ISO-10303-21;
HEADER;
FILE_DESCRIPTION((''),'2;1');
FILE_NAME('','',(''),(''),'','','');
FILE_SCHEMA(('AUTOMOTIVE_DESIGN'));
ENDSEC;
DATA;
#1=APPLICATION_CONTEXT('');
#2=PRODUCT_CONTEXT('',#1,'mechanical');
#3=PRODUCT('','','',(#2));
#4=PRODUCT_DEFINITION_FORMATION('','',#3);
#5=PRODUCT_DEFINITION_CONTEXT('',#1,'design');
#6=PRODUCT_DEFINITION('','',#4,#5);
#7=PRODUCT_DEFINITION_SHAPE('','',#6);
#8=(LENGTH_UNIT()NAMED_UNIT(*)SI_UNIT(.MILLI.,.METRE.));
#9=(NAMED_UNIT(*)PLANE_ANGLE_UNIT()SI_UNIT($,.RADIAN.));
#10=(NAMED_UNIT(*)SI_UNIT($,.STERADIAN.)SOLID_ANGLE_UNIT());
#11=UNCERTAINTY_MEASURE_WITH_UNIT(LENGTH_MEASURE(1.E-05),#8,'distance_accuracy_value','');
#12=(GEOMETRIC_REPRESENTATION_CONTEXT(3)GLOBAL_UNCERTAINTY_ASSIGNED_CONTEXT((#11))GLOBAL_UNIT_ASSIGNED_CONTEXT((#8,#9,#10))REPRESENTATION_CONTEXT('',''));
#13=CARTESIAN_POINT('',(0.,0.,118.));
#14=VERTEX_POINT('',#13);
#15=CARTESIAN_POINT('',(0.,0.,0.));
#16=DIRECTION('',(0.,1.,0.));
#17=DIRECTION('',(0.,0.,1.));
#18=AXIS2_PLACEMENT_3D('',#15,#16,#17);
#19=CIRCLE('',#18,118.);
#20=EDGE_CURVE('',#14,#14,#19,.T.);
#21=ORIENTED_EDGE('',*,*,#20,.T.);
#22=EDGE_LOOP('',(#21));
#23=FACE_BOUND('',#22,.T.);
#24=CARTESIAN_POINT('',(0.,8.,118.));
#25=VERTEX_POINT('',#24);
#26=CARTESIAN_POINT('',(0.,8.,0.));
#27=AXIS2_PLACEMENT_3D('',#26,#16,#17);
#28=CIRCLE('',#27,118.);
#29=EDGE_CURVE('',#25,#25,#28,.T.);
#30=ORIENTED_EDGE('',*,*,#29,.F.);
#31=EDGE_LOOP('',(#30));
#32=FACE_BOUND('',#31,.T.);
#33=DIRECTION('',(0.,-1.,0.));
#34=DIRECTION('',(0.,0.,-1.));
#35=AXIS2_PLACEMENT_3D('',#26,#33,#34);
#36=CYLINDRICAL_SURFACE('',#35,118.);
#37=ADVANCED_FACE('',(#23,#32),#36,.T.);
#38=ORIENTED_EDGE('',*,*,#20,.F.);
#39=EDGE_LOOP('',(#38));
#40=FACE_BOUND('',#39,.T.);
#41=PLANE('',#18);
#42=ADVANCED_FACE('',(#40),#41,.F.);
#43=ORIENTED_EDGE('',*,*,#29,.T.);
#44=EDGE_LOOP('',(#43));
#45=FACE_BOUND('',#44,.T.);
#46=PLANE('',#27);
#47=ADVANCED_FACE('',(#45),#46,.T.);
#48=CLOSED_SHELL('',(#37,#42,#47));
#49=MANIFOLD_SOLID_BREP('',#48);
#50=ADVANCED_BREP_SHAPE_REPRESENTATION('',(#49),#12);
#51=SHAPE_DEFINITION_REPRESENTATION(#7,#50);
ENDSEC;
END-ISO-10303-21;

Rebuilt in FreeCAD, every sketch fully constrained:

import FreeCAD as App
import Part
import Sketcher

V = App.Vector
Q = App.Units.Quantity

doc = App.newDocument("Part")
body = doc.addObject("PartDesign::Body", "Body")

# Sketch on XZ plane
sketch1 = doc.addObject("Sketcher::SketchObject", "Sketch")
body.addObject(sketch1)
sketch1.AttachmentSupport = (doc.XZ_Plane, [""])
sketch1.MapMode = "FlatFace"
sketch1.addGeometry(Part.Circle(V(0, 0, 0), V(0, 0, 1), 118), False)
sketch1.addConstraint(Sketcher.Constraint("Coincident", 0, 3, -1, 1))
sketch1.addConstraint(Sketcher.Constraint("Diameter", 0, Q("236 mm")))
pad1 = doc.addObject("PartDesign::Pad", "Pad")
body.addObject(pad1)
pad1.Profile = sketch1
pad1.Length = 8
pad1.Reversed = True

doc.recompute()
